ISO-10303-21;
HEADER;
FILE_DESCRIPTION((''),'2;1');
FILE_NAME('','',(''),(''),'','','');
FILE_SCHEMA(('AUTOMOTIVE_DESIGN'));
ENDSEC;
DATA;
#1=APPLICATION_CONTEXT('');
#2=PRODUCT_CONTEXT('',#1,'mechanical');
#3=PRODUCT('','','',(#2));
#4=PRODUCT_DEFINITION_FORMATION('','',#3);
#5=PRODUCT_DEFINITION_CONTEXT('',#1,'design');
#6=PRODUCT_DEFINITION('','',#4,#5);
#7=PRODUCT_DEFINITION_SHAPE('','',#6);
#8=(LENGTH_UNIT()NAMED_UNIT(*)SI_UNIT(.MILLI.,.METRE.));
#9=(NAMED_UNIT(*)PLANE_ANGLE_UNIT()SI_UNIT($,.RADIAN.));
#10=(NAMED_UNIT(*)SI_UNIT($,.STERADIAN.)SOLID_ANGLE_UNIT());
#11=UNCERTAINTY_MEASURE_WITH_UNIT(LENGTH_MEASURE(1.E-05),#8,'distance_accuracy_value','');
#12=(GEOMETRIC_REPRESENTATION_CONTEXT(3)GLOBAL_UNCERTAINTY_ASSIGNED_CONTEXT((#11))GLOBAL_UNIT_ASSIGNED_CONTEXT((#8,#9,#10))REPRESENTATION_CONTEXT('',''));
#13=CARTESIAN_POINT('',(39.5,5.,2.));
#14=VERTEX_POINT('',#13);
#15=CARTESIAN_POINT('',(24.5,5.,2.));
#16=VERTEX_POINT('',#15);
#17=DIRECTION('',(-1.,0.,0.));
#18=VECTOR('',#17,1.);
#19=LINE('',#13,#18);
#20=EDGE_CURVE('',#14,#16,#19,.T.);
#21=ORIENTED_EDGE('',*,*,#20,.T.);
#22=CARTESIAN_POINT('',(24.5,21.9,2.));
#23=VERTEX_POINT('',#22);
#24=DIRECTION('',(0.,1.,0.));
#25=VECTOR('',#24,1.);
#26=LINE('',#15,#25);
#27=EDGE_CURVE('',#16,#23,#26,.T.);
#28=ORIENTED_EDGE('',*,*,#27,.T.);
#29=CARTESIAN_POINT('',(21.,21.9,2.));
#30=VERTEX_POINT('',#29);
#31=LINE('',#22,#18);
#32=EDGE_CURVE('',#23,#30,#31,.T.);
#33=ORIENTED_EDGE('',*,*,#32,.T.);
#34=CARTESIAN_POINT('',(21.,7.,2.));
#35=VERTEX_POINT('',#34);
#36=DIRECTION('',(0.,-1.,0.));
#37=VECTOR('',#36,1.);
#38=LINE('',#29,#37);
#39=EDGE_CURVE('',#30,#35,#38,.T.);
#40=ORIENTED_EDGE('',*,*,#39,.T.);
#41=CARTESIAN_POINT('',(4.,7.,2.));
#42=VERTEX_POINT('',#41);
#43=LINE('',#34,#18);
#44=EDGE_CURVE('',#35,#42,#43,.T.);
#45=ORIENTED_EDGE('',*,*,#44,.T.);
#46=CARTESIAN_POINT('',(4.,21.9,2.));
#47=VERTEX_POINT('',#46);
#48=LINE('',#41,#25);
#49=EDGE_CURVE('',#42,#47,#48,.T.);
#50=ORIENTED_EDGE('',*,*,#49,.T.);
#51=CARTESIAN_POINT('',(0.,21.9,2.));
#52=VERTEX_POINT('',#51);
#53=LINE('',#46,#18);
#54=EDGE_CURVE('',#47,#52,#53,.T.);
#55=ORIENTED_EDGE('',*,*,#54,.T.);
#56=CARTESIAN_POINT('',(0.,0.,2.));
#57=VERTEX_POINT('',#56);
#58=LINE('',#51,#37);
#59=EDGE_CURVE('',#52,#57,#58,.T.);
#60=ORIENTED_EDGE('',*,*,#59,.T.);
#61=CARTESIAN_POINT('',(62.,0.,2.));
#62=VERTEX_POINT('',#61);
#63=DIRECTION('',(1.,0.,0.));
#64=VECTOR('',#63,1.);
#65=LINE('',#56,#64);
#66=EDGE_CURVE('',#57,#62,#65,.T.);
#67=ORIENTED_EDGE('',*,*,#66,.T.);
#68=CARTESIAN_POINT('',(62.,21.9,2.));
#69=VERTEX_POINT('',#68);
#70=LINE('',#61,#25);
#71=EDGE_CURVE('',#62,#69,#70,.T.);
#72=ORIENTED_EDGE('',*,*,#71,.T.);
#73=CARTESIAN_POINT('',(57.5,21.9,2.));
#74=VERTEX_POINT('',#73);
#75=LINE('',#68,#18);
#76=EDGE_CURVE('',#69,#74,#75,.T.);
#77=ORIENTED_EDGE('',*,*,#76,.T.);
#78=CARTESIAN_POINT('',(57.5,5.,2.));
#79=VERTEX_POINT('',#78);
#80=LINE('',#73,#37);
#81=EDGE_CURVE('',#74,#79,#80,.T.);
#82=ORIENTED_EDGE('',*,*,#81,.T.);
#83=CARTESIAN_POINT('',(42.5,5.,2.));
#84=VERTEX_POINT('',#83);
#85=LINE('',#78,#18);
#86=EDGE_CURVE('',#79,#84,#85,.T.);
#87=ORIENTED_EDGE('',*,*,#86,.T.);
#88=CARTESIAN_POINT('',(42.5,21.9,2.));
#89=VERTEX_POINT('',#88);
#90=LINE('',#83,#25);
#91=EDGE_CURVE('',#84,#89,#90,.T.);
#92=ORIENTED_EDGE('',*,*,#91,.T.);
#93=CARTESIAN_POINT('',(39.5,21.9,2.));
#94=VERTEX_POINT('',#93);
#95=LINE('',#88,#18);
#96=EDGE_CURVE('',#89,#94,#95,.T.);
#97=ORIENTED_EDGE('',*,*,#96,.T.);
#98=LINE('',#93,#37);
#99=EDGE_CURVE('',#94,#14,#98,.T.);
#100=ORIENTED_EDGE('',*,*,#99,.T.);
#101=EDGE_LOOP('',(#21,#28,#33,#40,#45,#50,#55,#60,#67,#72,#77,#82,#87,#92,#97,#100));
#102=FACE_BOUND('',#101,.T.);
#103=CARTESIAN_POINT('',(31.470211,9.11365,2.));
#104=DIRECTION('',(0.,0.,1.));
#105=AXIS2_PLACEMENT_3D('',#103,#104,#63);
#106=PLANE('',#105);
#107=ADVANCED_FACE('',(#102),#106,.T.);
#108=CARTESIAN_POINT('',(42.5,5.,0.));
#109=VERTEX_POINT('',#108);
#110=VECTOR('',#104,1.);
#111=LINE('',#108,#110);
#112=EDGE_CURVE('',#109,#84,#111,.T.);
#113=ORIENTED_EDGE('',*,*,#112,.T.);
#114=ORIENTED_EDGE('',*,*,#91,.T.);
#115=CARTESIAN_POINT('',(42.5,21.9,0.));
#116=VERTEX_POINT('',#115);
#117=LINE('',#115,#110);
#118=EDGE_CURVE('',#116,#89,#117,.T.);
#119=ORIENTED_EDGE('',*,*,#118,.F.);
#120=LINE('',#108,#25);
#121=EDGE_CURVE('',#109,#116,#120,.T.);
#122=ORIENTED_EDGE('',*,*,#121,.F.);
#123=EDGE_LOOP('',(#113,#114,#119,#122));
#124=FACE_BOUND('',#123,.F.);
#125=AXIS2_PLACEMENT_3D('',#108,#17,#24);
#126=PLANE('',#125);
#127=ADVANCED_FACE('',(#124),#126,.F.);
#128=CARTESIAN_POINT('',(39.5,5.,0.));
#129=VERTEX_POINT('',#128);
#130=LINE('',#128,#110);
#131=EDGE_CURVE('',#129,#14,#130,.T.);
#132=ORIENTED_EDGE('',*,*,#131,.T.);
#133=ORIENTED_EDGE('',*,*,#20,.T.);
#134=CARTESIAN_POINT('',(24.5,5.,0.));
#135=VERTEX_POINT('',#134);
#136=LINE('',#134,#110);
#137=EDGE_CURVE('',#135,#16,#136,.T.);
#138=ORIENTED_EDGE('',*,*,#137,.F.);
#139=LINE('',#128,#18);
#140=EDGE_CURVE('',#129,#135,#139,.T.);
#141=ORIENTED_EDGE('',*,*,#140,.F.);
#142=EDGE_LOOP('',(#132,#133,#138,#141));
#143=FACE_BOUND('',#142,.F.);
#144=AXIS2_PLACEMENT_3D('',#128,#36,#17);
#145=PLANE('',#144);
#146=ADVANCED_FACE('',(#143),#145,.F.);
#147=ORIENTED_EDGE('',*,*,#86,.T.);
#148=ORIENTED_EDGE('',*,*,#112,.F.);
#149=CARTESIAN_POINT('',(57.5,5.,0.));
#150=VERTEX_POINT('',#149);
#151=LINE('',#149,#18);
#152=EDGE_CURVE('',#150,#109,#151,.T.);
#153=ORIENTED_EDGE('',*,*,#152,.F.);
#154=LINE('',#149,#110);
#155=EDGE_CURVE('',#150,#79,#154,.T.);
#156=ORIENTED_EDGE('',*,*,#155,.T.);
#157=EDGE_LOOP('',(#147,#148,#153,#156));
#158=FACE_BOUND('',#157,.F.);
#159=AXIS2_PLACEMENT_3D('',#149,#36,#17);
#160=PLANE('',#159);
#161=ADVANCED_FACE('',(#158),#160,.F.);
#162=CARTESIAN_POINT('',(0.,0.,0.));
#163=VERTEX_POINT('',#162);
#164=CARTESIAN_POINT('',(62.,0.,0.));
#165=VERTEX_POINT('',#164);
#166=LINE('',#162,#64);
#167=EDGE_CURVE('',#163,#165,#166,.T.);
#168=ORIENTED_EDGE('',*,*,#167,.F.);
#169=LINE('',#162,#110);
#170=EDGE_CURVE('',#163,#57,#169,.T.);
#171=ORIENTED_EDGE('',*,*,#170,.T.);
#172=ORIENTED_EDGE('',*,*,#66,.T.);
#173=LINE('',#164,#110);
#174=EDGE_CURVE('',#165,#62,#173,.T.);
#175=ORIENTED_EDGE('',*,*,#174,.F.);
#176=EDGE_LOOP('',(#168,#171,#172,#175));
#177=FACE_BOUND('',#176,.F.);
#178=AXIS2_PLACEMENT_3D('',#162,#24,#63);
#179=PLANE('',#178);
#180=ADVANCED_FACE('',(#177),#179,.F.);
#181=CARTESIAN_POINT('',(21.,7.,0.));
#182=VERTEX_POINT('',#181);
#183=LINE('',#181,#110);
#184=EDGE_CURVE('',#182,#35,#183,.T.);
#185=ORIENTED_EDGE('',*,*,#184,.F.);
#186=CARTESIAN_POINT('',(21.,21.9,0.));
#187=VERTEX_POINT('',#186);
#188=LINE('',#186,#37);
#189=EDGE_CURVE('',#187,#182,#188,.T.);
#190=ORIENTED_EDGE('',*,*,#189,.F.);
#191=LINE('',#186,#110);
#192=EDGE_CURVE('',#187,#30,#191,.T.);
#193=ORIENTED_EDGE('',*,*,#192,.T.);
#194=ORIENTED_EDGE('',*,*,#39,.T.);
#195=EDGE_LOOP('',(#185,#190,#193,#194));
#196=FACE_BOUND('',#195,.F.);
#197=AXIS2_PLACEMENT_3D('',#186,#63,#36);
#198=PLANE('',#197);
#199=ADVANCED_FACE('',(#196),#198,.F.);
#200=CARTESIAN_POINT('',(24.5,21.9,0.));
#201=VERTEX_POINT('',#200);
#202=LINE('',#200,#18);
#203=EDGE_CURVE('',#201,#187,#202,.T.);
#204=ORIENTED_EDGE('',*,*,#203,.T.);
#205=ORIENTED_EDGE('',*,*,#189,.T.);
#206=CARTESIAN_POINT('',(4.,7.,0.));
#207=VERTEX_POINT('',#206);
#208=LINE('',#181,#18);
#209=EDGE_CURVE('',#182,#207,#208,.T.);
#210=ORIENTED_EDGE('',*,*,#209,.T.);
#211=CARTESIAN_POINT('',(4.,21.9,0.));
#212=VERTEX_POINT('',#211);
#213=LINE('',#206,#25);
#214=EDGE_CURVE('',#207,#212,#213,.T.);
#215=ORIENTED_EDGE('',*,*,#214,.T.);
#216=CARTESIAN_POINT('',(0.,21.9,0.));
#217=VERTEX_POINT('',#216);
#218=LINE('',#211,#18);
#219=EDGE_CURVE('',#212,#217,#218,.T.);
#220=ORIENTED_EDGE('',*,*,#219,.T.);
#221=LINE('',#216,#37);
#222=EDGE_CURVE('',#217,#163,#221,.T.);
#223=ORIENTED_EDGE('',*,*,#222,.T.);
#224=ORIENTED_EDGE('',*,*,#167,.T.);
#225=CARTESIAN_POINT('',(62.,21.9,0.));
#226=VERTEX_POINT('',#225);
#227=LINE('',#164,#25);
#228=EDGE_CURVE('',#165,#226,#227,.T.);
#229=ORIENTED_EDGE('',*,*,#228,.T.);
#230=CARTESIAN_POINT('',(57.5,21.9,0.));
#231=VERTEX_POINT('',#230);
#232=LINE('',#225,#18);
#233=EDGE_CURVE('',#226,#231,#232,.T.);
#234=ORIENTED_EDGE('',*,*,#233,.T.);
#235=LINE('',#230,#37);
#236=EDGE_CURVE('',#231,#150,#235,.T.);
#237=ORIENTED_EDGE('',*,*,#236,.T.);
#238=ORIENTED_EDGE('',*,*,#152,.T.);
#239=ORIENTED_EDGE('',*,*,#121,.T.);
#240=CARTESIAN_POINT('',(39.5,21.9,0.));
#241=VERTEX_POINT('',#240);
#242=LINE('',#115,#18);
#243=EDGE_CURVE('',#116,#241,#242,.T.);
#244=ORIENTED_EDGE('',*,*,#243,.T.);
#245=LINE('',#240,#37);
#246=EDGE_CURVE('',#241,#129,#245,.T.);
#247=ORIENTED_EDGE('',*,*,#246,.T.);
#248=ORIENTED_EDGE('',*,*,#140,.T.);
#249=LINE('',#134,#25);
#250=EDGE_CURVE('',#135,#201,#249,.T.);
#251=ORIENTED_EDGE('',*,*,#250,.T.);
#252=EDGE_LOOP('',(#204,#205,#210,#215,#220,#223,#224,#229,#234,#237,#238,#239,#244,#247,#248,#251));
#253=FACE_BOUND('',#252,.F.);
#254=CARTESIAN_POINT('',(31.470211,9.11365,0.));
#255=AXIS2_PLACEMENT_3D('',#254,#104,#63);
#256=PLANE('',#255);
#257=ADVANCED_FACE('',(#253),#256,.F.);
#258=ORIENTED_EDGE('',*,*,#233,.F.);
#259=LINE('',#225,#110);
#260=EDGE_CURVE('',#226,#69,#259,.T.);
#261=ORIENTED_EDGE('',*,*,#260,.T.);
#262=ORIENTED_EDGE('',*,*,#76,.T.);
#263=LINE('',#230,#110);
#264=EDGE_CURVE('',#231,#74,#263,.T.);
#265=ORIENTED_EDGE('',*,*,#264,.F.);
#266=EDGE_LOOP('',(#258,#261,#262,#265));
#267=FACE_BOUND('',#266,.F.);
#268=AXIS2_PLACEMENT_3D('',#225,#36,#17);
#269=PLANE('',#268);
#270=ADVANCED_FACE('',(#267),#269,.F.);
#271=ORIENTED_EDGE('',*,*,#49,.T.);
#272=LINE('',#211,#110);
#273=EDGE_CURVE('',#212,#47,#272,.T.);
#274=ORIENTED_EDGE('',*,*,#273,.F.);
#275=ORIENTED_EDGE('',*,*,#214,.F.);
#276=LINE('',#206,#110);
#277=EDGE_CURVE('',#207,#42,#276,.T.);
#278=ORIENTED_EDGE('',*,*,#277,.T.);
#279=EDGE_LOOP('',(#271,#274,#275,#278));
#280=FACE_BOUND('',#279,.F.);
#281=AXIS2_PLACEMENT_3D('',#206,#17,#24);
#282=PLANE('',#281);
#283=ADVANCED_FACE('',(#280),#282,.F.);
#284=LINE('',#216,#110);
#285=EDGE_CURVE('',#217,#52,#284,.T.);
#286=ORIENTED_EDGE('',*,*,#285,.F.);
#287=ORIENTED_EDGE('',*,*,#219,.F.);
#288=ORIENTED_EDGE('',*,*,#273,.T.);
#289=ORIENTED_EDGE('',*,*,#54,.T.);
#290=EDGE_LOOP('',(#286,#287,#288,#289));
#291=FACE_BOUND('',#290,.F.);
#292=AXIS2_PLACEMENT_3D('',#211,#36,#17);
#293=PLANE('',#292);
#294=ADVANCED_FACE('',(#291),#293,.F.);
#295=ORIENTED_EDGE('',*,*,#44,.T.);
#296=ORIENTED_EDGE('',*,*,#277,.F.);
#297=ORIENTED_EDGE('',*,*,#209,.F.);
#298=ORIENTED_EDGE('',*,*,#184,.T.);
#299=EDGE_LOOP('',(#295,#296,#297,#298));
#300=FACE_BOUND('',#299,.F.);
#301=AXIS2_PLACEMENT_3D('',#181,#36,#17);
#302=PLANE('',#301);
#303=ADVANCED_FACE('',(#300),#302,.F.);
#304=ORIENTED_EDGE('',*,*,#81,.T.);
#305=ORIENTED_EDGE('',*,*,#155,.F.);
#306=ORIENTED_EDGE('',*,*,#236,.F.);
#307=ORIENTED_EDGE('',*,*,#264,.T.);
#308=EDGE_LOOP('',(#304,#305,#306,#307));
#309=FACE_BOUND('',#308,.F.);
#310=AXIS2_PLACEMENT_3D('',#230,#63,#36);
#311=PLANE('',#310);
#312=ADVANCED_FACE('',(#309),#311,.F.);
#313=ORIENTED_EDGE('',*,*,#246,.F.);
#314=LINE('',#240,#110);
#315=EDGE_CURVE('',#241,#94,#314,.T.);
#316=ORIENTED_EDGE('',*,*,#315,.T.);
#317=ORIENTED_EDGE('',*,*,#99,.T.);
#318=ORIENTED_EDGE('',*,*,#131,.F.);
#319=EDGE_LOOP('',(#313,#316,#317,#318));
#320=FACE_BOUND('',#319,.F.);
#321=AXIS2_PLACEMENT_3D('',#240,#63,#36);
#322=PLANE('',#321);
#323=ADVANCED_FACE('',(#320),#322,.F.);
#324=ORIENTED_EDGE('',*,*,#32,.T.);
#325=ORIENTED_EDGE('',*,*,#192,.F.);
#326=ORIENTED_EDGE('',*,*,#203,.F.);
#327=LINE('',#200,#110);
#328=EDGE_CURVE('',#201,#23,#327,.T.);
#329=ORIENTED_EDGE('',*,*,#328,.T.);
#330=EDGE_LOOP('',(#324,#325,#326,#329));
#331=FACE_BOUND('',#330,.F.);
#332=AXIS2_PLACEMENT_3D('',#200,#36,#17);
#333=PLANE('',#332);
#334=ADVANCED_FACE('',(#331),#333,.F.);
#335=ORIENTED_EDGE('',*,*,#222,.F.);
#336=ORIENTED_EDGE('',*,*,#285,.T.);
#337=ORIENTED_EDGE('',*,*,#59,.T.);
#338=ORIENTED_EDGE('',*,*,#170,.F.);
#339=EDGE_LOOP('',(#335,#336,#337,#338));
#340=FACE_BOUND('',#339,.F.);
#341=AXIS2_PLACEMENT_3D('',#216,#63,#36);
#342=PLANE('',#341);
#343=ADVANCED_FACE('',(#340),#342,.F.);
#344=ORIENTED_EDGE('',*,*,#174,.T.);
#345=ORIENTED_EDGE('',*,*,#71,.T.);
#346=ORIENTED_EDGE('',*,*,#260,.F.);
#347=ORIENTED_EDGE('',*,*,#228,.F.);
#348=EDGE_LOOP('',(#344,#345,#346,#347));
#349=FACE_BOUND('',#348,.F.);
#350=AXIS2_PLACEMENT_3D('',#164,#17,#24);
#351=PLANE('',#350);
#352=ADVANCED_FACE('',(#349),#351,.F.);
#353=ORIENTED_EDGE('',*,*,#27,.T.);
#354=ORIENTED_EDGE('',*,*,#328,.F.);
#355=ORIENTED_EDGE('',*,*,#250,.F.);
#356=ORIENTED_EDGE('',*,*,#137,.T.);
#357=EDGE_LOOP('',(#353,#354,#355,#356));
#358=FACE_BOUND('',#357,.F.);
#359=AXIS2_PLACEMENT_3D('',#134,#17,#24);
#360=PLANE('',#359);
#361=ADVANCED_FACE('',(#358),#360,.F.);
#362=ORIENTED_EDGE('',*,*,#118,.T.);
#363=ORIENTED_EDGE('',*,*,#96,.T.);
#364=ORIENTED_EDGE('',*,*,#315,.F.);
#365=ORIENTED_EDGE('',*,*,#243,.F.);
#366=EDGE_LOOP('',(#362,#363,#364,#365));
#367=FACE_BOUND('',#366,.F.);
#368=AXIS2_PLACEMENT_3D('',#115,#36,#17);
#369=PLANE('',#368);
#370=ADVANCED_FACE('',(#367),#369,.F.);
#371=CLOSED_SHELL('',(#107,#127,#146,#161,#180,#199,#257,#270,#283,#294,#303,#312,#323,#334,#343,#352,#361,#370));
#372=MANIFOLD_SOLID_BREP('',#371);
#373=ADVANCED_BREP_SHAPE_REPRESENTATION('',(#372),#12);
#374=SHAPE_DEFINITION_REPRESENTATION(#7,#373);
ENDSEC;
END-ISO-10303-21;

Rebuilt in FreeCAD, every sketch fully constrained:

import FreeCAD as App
import Part
import Sketcher
from FreeCAD import Vector
Q = App.Units.Quantity


def add_polygon(sketch, points):
    """Adds a closed chain of lines whose ends are joined by coincident constraints."""
    first, n = sketch.GeometryCount, len(points)
    for a, b in zip(points, points[1:] + points[:1]):
        sketch.addGeometry(Part.LineSegment(App.Vector(*a, 0), App.Vector(*b, 0)), False)
    for i in range(n):
        sketch.addConstraint(Sketcher.Constraint("Coincident", first + i, 2, first + (i + 1) % n, 1))

doc = App.newDocument("Part")
body = doc.addObject("PartDesign::Body", "Body")

# Sketch on XY plane
sketch1 = body.newObject("Sketcher::SketchObject", "Sketch")
sketch1.AttachmentSupport = (doc.getObject("XY_Plane"), [""])
sketch1.MapMode = "FlatFace"
add_polygon(sketch1, [(0, 0), (62, 0), (62, 21.9), (57.5, 21.9), (57.5, 5), (42.5, 5), (42.5, 21.9), (39.5, 21.9), (39.5, 5), (24.5, 5), (24.5, 21.9), (21, 21.9), (21, 7), (4, 7), (4, 21.9), (0, 21.9)])  # lines 0-15
sketch1.addConstraint(Sketcher.Constraint("Horizontal", 0))
sketch1.addConstraint(Sketcher.Constraint("Vertical", 1))
sketch1.addConstraint(Sketcher.Constraint("Horizontal", 2))
sketch1.addConstraint(Sketcher.Constraint("Vertical", 3))
sketch1.addConstraint(Sketcher.Constraint("Horizontal", 4))
sketch1.addConstraint(Sketcher.Constraint("Vertical", 5))
sketch1.addConstraint(Sketcher.Constraint("Horizontal", 6))
sketch1.addConstraint(Sketcher.Constraint("Vertical", 7))
sketch1.addConstraint(Sketcher.Constraint("Horizontal", 8))
sketch1.addConstraint(Sketcher.Constraint("Vertical", 9))
sketch1.addConstraint(Sketcher.Constraint("Horizontal", 10))
sketch1.addConstraint(Sketcher.Constraint("Vertical", 11))
sketch1.addConstraint(Sketcher.Constraint("Horizontal", 12))
sketch1.addConstraint(Sketcher.Constraint("Vertical", 13))
sketch1.addConstraint(Sketcher.Constraint("Horizontal", 14))
sketch1.addConstraint(Sketcher.Constraint("Vertical", 15))
sketch1.addConstraint(Sketcher.Constraint("Coincident", 15, 2, -1, 1))
sketch1.addConstraint(Sketcher.Constraint("Horizontal", 2, 2, 5, 2))
sketch1.addConstraint(Sketcher.Constraint("Horizontal", 4, 2, 7, 2))
sketch1.addConstraint(Sketcher.Constraint("Horizontal", 6, 2, 9, 2))
sketch1.addConstraint(Sketcher.Constraint("Horizontal", 10, 2, 13, 2))
sketch1.addConstraint(Sketcher.Constraint("Equal", 4, 8))
sketch1.addConstraint(Sketcher.Constraint("DistanceX", 0, 1, 0, 2, Q("62 mm")))
sketch1.addConstraint(Sketcher.Constraint("DistanceX", 4, 2, 4, 1, Q("15 mm")))
sketch1.addConstraint(Sketcher.Constraint("DistanceX", 6, 2, 6, 1, Q("3 mm")))
sketch1.addConstraint(Sketcher.Constraint("DistanceX", 12, 2, 12, 1, Q("17 mm")))
sketch1.addConstraint(Sketcher.Constraint("DistanceX", 14, 2, 14, 1, Q("4 mm")))
sketch1.addConstraint(Sketcher.Constraint("DistanceX", 2, 2, 2, 1, Q("4.5 mm")))
sketch1.addConstraint(Sketcher.Constraint("DistanceY", 1, 1, 1, 2, Q("21.9 mm")))
sketch1.addConstraint(Sketcher.Constraint("DistanceY", 3, 2, 3, 1, Q("16.9 mm")))
sketch1.addConstraint(Sketcher.Constraint("DistanceY", 11, 2, 11, 1, Q("14.9 mm")))
pad1 = body.newObject("PartDesign::Pad", "Pad")
pad1.Profile = sketch1
pad1.Length = 2

doc.recompute()
